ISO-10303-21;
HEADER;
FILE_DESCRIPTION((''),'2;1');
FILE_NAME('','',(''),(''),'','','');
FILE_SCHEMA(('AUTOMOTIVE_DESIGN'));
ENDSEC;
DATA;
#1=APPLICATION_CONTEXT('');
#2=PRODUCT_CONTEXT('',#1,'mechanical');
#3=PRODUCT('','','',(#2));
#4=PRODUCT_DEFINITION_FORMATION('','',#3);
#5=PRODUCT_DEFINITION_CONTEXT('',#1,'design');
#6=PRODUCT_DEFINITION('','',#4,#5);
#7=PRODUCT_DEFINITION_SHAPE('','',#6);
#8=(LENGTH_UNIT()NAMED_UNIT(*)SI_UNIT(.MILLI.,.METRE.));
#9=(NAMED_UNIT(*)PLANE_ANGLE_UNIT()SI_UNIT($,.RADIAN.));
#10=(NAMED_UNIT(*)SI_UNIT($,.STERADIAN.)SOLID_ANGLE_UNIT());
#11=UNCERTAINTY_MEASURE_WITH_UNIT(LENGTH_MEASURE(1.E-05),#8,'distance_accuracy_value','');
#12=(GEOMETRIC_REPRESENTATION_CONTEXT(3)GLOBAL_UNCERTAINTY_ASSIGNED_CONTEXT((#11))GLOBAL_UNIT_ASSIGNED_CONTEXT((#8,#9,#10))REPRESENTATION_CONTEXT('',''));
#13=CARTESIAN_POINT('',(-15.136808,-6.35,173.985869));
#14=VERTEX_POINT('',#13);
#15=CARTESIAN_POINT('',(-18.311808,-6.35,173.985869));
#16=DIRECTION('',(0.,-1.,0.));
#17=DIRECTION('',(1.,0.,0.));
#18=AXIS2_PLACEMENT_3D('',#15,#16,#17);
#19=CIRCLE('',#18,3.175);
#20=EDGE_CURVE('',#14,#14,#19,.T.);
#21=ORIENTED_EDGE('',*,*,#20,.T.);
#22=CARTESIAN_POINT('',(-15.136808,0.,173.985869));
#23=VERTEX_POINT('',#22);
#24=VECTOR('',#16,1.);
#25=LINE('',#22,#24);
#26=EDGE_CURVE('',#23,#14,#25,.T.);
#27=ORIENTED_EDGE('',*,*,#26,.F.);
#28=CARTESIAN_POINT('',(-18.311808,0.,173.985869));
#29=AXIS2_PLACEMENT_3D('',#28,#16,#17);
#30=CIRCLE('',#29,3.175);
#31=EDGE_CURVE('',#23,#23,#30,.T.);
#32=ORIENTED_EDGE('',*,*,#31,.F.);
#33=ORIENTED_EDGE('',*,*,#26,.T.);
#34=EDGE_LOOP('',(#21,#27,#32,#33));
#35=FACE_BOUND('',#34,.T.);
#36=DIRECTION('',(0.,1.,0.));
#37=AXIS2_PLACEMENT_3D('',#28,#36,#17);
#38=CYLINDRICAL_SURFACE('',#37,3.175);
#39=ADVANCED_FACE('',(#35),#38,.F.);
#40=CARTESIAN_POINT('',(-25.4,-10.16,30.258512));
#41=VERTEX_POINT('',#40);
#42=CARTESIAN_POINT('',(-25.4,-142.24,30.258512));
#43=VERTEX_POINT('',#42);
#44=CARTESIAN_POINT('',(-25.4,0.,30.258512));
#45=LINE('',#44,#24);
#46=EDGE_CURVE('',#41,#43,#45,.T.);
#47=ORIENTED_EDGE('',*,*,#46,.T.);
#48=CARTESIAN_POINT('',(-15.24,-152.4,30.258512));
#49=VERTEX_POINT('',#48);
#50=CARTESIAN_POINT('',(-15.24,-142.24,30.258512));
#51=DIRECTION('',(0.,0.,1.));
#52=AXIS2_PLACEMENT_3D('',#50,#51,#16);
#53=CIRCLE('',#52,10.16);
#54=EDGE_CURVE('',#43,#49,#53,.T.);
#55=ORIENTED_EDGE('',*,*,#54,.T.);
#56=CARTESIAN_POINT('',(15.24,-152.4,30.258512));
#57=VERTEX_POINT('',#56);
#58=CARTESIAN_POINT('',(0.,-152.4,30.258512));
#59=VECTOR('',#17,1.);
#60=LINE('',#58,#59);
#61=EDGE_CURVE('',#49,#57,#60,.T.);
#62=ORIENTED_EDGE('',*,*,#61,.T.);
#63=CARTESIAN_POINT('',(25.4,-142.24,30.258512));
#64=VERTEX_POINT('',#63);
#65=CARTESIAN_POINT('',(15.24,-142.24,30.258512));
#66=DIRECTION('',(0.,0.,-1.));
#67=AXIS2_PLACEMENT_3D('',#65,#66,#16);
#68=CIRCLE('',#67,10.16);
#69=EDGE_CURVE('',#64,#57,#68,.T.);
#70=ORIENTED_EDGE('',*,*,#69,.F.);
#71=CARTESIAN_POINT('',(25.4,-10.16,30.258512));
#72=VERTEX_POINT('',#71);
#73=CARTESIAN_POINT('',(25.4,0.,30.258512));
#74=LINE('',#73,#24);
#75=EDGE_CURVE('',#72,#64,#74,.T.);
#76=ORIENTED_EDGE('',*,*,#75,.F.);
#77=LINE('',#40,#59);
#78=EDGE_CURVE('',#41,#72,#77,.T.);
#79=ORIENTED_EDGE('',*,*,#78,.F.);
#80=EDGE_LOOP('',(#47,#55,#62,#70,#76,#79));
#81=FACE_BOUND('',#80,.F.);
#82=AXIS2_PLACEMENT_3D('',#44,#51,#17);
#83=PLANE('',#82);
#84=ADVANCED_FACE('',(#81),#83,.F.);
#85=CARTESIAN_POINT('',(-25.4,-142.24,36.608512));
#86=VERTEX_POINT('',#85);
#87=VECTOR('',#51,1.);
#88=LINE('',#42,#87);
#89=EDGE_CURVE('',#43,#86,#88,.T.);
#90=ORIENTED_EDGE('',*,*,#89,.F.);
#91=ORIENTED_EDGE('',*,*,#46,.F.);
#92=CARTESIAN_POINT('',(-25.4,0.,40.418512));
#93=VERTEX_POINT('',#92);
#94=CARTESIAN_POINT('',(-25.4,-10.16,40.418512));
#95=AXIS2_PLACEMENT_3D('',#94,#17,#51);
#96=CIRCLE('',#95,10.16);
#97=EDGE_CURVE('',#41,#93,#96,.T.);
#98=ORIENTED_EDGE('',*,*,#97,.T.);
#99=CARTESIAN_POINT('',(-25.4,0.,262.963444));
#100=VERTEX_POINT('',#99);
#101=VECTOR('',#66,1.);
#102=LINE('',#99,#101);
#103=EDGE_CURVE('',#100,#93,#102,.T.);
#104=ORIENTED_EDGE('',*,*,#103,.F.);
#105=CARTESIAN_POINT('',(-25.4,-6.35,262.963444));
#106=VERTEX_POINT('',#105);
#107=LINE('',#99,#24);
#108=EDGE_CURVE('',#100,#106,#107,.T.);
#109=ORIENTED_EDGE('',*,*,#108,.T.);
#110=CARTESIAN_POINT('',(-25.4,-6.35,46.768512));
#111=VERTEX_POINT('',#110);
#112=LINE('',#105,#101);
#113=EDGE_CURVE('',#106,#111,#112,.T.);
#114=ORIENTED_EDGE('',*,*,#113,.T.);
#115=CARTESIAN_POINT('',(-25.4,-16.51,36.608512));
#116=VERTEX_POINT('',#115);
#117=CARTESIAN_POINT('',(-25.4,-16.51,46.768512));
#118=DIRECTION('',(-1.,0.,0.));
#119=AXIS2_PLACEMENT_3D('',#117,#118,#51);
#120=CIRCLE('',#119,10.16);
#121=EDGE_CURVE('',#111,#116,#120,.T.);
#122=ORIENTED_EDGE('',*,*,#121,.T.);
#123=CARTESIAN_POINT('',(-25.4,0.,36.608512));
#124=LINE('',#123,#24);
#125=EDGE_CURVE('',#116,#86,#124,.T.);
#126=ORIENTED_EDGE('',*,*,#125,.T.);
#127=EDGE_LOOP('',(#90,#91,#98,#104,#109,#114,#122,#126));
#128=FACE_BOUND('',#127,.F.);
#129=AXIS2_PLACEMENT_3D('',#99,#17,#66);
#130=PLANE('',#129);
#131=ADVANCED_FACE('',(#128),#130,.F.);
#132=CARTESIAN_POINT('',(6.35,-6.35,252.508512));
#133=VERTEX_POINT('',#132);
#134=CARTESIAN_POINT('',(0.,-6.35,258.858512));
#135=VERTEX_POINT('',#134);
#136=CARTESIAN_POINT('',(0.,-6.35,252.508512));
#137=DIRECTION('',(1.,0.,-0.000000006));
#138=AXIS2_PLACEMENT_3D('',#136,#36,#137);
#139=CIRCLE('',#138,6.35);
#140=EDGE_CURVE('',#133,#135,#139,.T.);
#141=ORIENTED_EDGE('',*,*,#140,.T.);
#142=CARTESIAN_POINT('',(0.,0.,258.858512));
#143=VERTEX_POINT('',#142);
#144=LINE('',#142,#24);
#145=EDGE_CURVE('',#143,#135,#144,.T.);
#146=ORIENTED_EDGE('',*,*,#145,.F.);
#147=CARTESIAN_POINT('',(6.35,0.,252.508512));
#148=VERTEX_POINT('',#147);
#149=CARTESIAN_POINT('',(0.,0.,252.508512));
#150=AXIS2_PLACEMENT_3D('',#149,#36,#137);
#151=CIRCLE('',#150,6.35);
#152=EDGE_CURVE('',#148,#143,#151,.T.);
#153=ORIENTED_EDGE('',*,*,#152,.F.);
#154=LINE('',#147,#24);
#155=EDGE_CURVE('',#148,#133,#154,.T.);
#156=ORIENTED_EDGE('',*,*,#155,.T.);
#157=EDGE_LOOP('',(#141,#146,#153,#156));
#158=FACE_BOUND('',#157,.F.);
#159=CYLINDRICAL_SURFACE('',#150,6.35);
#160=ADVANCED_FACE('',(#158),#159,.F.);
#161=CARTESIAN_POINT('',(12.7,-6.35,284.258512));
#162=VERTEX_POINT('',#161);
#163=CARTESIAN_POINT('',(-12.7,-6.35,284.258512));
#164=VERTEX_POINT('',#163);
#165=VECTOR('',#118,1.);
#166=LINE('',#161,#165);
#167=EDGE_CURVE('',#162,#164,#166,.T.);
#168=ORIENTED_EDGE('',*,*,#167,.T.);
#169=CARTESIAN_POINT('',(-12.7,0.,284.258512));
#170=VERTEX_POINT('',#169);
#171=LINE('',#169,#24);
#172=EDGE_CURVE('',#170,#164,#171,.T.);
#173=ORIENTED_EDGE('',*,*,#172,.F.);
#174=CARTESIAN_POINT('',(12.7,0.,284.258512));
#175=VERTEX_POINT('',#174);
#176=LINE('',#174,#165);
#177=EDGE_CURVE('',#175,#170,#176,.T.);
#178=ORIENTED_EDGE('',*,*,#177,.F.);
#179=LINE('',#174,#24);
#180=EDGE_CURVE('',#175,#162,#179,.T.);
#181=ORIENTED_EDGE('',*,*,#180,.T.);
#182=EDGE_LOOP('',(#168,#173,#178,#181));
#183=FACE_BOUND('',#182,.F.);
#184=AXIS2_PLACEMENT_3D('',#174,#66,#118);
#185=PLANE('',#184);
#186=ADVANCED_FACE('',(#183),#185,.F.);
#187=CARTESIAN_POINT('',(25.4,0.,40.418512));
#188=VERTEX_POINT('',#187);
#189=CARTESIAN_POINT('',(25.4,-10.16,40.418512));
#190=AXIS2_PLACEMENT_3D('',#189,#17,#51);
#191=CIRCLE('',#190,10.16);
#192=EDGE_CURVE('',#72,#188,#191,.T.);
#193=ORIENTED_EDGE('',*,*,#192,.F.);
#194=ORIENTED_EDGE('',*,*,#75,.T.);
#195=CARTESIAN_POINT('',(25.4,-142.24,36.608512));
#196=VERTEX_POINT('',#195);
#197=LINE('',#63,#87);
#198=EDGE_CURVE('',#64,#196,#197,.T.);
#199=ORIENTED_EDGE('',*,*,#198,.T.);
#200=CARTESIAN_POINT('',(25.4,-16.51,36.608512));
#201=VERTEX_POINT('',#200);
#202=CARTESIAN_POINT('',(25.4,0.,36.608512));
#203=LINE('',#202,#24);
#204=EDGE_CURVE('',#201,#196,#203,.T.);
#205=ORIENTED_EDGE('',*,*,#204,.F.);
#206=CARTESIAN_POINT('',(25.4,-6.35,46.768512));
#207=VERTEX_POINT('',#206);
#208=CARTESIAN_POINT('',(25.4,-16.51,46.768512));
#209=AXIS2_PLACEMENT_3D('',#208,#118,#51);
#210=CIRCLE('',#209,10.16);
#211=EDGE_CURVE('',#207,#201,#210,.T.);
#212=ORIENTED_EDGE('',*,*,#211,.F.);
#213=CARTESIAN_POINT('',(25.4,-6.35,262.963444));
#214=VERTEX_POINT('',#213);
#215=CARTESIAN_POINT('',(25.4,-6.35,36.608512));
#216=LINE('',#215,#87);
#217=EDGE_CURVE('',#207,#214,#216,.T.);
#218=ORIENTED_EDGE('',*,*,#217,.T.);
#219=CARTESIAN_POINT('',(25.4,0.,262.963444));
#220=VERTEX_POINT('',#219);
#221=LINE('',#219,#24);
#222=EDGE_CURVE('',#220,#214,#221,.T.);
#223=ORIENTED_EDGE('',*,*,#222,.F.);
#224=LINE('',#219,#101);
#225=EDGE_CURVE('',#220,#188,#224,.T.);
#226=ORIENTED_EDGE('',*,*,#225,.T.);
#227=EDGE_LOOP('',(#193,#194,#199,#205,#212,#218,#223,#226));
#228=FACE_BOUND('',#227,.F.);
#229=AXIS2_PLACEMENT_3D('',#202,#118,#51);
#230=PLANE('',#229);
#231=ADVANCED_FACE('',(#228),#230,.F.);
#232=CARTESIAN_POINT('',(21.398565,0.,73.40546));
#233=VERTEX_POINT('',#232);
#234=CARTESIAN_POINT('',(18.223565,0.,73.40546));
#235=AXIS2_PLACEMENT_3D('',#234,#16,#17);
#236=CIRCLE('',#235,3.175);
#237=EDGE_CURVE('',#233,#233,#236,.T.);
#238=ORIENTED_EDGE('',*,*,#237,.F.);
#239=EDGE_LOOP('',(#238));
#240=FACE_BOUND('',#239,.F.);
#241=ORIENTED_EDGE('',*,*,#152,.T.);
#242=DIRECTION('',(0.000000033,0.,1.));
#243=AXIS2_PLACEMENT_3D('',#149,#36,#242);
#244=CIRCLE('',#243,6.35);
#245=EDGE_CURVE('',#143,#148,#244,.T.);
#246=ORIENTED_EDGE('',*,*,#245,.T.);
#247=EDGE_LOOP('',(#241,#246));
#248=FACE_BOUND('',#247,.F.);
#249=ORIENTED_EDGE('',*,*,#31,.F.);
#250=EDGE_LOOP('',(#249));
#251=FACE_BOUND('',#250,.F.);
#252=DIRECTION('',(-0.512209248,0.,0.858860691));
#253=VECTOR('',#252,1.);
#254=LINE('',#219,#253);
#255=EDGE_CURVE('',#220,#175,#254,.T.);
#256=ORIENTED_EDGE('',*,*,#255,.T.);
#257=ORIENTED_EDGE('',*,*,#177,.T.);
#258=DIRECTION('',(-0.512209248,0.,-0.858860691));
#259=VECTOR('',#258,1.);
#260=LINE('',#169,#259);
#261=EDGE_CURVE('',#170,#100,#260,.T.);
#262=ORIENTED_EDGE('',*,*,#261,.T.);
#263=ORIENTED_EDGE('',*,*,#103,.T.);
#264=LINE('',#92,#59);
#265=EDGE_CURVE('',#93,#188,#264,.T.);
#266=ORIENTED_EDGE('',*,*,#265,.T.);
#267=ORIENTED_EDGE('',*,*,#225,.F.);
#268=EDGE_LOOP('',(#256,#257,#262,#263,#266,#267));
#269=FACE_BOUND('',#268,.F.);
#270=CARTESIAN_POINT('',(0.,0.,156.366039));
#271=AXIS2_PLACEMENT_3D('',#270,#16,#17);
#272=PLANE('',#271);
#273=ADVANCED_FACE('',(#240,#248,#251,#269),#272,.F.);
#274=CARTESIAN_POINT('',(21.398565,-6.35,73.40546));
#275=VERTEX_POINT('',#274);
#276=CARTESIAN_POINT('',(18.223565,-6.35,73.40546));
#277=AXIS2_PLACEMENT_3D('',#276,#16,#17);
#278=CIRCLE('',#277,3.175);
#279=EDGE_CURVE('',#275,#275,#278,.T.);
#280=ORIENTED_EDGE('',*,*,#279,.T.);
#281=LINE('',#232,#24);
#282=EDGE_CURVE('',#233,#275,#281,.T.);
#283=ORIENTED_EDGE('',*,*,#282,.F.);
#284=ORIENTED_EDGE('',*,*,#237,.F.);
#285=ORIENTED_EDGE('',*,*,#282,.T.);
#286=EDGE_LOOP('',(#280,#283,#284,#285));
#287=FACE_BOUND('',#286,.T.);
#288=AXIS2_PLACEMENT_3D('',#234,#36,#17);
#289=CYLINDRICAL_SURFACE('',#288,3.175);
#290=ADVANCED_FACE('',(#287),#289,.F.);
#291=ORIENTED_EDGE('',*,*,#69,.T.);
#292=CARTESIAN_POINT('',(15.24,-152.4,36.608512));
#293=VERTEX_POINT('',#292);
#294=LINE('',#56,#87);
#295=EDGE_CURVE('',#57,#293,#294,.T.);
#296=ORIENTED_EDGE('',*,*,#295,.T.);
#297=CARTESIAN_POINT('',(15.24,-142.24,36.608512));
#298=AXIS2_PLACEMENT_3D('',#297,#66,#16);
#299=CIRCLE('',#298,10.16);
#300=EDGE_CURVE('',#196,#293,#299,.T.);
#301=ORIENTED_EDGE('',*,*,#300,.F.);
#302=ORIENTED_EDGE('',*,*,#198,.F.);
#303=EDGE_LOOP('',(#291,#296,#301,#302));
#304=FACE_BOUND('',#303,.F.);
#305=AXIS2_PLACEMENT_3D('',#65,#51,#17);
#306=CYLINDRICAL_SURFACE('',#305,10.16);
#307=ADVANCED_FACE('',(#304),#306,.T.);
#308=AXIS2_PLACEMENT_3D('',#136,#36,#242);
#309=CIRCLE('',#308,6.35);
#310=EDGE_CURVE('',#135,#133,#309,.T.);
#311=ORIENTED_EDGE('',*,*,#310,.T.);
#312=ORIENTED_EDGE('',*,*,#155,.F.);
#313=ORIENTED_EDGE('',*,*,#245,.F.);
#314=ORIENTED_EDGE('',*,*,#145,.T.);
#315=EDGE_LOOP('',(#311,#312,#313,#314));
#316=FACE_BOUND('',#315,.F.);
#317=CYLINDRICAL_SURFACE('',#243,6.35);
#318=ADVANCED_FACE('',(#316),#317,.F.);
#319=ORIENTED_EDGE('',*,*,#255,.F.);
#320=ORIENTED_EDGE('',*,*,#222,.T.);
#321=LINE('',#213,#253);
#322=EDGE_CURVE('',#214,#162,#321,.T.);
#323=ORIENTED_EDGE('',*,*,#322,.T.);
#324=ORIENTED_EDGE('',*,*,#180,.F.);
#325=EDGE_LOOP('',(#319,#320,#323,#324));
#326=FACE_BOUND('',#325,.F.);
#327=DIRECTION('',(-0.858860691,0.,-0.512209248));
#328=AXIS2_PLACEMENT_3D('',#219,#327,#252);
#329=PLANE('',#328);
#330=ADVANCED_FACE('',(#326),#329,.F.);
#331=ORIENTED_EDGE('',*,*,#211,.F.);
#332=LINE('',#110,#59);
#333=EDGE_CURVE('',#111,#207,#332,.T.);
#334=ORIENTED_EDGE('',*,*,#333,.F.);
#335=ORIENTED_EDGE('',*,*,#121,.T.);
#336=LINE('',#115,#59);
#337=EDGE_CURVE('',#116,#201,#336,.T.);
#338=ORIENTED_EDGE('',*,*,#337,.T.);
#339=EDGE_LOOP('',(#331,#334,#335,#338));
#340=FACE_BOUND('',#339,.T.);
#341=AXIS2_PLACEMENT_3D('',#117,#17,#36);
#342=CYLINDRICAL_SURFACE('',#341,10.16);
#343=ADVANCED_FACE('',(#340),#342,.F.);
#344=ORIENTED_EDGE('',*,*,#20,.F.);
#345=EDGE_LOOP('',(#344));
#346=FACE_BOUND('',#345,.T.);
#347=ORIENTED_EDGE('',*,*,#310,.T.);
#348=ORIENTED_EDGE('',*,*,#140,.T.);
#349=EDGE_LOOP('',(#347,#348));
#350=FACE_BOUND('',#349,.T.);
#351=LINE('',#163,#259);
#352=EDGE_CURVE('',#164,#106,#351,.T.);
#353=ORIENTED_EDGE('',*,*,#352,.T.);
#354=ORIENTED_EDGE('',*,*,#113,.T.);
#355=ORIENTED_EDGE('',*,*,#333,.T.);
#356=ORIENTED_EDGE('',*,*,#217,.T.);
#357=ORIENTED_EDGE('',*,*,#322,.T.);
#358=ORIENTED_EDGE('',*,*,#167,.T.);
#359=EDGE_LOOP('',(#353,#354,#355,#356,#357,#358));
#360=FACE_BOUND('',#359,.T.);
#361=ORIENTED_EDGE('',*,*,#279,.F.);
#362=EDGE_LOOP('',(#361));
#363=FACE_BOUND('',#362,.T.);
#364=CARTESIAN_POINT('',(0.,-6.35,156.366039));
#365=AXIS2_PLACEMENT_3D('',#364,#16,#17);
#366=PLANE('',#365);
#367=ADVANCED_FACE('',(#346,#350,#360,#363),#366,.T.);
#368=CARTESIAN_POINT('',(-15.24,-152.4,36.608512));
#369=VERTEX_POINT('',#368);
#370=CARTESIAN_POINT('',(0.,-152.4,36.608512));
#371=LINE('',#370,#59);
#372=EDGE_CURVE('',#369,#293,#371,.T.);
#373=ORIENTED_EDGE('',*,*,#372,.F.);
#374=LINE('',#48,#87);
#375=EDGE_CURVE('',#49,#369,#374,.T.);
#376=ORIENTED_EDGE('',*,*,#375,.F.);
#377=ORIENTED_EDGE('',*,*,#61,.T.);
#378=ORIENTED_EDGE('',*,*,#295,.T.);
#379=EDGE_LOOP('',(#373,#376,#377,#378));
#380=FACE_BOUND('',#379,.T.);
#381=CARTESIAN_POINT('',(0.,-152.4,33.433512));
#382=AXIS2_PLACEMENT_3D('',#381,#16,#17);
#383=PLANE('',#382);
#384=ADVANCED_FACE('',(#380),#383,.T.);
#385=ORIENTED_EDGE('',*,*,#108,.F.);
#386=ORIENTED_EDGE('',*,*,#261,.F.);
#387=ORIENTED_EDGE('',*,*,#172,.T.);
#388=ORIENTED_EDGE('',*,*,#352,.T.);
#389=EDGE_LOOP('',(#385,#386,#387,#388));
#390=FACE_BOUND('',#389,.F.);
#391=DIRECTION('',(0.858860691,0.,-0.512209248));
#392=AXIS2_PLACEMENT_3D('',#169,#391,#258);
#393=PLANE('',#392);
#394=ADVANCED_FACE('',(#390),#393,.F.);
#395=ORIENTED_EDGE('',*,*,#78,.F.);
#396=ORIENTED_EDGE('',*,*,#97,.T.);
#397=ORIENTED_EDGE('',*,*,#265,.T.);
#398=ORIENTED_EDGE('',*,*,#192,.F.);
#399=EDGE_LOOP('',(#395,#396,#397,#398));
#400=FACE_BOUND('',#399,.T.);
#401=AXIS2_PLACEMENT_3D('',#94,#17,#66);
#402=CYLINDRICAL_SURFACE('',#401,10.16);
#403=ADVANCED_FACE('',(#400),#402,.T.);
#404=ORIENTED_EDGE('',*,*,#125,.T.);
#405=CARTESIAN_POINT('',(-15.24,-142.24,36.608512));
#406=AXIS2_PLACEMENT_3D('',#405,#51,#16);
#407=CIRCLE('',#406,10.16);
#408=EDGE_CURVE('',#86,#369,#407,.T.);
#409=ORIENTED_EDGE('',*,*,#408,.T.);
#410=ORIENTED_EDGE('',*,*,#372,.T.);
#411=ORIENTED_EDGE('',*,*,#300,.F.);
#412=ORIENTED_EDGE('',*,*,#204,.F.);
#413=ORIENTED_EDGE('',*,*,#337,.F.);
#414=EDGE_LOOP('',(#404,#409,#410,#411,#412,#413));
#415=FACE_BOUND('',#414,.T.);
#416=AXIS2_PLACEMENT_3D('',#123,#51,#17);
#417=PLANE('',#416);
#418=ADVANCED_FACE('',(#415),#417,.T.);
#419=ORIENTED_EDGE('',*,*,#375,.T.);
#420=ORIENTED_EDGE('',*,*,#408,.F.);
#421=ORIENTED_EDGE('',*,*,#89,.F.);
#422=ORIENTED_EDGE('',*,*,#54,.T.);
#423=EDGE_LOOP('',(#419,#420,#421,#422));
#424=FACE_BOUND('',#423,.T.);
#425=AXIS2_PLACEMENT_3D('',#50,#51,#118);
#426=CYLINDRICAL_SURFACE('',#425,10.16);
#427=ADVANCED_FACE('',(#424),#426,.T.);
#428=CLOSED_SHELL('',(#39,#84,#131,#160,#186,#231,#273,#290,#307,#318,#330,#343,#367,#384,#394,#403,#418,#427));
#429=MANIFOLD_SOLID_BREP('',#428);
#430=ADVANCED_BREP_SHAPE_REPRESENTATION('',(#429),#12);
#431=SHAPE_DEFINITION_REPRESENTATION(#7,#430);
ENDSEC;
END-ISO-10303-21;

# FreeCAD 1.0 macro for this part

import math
import FreeCAD as App
import Part
import Sketcher
from FreeCAD import Vector
Q = App.Units.Quantity


def edges_at(feature, points):
    """Names of the edges that pass closest to the given points."""
    edges = feature.Shape.Edges
    near = lambda p: min(range(len(edges)), key=lambda i: edges[i].distToShape(Part.Vertex(*p))[0])
    return sorted({f"Edge{near(p) + 1}" for p in points})


def add_polygon(sketch, points):
    """Adds a closed chain of lines whose ends are joined by coincident constraints."""
    first, n = sketch.GeometryCount, len(points)
    for a, b in zip(points, points[1:] + points[:1]):
        sketch.addGeometry(Part.LineSegment(App.Vector(*a, 0), App.Vector(*b, 0)), False)
    for i in range(n):
        sketch.addConstraint(Sketcher.Constraint("Coincident", first + i, 2, first + (i + 1) % n, 1))

doc = App.newDocument("Part")
body = doc.addObject("PartDesign::Body", "Body")

# Sketch on XZ plane
sketch1 = body.newObject("Sketcher::SketchObject", "Sketch")
sketch1.AttachmentSupport = (doc.getObject("XZ_Plane"), [""])
sketch1.MapMode = "FlatFace"
add_polygon(sketch1, [(-25, 37), (-25, 30), (25, 30), (25, 37)])  # lines 0-3
sketch1.addConstraint(Sketcher.Constraint("Vertical", 0))
sketch1.addConstraint(Sketcher.Constraint("Horizontal", 1))
sketch1.addConstraint(Sketcher.Constraint("Vertical", 2))
sketch1.addConstraint(Sketcher.Constraint("Horizontal", 3))
sketch1.addConstraint(Sketcher.Constraint("DistanceX", 1, 1, 1, 2, Q("2 in")))
sketch1.addConstraint(Sketcher.Constraint("DistanceX", 0, 2, -1, 1, Q("1 in")))
sketch1.addConstraint(Sketcher.Constraint("DistanceY", 0, 2, 0, 1, Q("0.25 in")))
sketch1.addConstraint(Sketcher.Constraint("DistanceY", -1, 1, 0, 2, Q("30.258512 mm")))
pad1 = body.newObject("PartDesign::Pad", "Pad")
pad1.Profile = sketch1
pad1.Length = Q("6 in")

# Sketch on XZ plane
sketch2 = body.newObject("Sketcher::SketchObject", "Sketch001")
sketch2.AttachmentSupport = (doc.getObject("XZ_Plane"), [""])
sketch2.MapMode = "FlatFace"
add_polygon(sketch2, [(-12.7, 284.3), (-25.4, 263), (-25.4, 36.6), (25.4, 36.6), (25.4, 263), (12.7, 284.3)])  # lines 0-5
sketch2.addGeometry(Part.Circle(Vector(18.2, 73.4, 0), Vector(0, 0, 1), 3.2), False)  # 6
sketch2.addGeometry(Part.Circle(Vector(-18.3, 174, 0), Vector(0, 0, 1), 3.2), False)  # 7
sketch2.addGeometry(Part.ArcOfCircle(Part.Circle(Vector(0, 252.5, 0), Vector(0, 0, 1), 6.4), math.radians(0), math.radians(90)), False)  # 8
sketch2.addGeometry(Part.ArcOfCircle(Part.Circle(Vector(0, 252.5, 0), Vector(0, 0, 1), 6.3), math.radians(90), math.radians(360)), False)  # 9
sketch2.addConstraint(Sketcher.Constraint("Tangent", 8, 1, 9, 2))
sketch2.addConstraint(Sketcher.Constraint("Coincident", 9, 1, 8, 2))
sketch2.addConstraint(Sketcher.Constraint("Vertical", 1))
sketch2.addConstraint(Sketcher.Constraint("Horizontal", 2))
sketch2.addConstraint(Sketcher.Constraint("Vertical", 3))
sketch2.addConstraint(Sketcher.Constraint("Horizontal", 5))
sketch2.addConstraint(Sketcher.Constraint("Equal", 6, 7))
sketch2.addConstraint(Sketcher.Constraint("Symmetric", 0, 2, 3, 2, -2))
sketch2.addConstraint(Sketcher.Constraint("PointOnObject", 8, 3, -2))
sketch2.addConstraint(Sketcher.Constraint("PointOnObject", 9, 1, -2))
sketch2.addConstraint(Sketcher.Constraint("Horizontal", 9, 3, 8, 1))
sketch2.addConstraint(Sketcher.Constraint("Equal", 0, 4))
sketch2.addConstraint(Sketcher.Constraint("Diameter", 6, Q("0.25 in")))
sketch2.addConstraint(Sketcher.Constraint("DistanceX", 2, 1, 2, 2, Q("2 in")))
sketch2.addConstraint(Sketcher.Constraint("DistanceX", 5, 2, 5, 1, Q("1 in")))
sketch2.addConstraint(Sketcher.Constraint("Radius", 8, Q("0.25 in")))
sketch2.addConstraint(Sketcher.Constraint("DistanceY", 1, 2, 8, 3, Q("8.5 in")))
sketch2.addConstraint(Sketcher.Constraint("DistanceY", 9, 3, 4, 2, Q("1.25 in")))
sketch2.addConstraint(Sketcher.Constraint("DistanceY", 1, 2, 1, 1, Q("226.354932 mm")))
sketch2.addConstraint(Sketcher.Constraint("DistanceY", -1, 1, 6, 3, Q("73.40546 mm")))
sketch2.addConstraint(Sketcher.Constraint("DistanceY", -1, 1, 7, 3, Q("173.985869 mm")))
sketch2.addConstraint(Sketcher.Constraint("DistanceY", -1, 1, 8, 3, Q("252.508512 mm")))
sketch2.addConstraint(Sketcher.Constraint("DistanceX", 7, 3, 9, 3, Q("18.311808 mm")))
sketch2.addConstraint(Sketcher.Constraint("DistanceX", -1, 1, 6, 3, Q("18.223565 mm")))
pad2 = body.newObject("PartDesign::Pad", "Pad001")
pad2.Profile = sketch2
pad2.Length = Q("0.25 in")
doc.recompute()

fillet = body.newObject("PartDesign::Fillet", "Fillet")
fillet.Base = (pad2, edges_at(pad2, [(0, -6.35, 36.609), (0, 0, 30.259)]))
fillet.Radius = Q("0.4 in")
doc.recompute()

fillet2 = body.newObject("PartDesign::Fillet", "Fillet001")
fillet2.Base = (fillet, edges_at(fillet, [(-25.4, -152.4, 33.434), (25.4, -152.4, 33.434)]))
fillet2.Radius = Q("0.4 in")

doc.recompute()
